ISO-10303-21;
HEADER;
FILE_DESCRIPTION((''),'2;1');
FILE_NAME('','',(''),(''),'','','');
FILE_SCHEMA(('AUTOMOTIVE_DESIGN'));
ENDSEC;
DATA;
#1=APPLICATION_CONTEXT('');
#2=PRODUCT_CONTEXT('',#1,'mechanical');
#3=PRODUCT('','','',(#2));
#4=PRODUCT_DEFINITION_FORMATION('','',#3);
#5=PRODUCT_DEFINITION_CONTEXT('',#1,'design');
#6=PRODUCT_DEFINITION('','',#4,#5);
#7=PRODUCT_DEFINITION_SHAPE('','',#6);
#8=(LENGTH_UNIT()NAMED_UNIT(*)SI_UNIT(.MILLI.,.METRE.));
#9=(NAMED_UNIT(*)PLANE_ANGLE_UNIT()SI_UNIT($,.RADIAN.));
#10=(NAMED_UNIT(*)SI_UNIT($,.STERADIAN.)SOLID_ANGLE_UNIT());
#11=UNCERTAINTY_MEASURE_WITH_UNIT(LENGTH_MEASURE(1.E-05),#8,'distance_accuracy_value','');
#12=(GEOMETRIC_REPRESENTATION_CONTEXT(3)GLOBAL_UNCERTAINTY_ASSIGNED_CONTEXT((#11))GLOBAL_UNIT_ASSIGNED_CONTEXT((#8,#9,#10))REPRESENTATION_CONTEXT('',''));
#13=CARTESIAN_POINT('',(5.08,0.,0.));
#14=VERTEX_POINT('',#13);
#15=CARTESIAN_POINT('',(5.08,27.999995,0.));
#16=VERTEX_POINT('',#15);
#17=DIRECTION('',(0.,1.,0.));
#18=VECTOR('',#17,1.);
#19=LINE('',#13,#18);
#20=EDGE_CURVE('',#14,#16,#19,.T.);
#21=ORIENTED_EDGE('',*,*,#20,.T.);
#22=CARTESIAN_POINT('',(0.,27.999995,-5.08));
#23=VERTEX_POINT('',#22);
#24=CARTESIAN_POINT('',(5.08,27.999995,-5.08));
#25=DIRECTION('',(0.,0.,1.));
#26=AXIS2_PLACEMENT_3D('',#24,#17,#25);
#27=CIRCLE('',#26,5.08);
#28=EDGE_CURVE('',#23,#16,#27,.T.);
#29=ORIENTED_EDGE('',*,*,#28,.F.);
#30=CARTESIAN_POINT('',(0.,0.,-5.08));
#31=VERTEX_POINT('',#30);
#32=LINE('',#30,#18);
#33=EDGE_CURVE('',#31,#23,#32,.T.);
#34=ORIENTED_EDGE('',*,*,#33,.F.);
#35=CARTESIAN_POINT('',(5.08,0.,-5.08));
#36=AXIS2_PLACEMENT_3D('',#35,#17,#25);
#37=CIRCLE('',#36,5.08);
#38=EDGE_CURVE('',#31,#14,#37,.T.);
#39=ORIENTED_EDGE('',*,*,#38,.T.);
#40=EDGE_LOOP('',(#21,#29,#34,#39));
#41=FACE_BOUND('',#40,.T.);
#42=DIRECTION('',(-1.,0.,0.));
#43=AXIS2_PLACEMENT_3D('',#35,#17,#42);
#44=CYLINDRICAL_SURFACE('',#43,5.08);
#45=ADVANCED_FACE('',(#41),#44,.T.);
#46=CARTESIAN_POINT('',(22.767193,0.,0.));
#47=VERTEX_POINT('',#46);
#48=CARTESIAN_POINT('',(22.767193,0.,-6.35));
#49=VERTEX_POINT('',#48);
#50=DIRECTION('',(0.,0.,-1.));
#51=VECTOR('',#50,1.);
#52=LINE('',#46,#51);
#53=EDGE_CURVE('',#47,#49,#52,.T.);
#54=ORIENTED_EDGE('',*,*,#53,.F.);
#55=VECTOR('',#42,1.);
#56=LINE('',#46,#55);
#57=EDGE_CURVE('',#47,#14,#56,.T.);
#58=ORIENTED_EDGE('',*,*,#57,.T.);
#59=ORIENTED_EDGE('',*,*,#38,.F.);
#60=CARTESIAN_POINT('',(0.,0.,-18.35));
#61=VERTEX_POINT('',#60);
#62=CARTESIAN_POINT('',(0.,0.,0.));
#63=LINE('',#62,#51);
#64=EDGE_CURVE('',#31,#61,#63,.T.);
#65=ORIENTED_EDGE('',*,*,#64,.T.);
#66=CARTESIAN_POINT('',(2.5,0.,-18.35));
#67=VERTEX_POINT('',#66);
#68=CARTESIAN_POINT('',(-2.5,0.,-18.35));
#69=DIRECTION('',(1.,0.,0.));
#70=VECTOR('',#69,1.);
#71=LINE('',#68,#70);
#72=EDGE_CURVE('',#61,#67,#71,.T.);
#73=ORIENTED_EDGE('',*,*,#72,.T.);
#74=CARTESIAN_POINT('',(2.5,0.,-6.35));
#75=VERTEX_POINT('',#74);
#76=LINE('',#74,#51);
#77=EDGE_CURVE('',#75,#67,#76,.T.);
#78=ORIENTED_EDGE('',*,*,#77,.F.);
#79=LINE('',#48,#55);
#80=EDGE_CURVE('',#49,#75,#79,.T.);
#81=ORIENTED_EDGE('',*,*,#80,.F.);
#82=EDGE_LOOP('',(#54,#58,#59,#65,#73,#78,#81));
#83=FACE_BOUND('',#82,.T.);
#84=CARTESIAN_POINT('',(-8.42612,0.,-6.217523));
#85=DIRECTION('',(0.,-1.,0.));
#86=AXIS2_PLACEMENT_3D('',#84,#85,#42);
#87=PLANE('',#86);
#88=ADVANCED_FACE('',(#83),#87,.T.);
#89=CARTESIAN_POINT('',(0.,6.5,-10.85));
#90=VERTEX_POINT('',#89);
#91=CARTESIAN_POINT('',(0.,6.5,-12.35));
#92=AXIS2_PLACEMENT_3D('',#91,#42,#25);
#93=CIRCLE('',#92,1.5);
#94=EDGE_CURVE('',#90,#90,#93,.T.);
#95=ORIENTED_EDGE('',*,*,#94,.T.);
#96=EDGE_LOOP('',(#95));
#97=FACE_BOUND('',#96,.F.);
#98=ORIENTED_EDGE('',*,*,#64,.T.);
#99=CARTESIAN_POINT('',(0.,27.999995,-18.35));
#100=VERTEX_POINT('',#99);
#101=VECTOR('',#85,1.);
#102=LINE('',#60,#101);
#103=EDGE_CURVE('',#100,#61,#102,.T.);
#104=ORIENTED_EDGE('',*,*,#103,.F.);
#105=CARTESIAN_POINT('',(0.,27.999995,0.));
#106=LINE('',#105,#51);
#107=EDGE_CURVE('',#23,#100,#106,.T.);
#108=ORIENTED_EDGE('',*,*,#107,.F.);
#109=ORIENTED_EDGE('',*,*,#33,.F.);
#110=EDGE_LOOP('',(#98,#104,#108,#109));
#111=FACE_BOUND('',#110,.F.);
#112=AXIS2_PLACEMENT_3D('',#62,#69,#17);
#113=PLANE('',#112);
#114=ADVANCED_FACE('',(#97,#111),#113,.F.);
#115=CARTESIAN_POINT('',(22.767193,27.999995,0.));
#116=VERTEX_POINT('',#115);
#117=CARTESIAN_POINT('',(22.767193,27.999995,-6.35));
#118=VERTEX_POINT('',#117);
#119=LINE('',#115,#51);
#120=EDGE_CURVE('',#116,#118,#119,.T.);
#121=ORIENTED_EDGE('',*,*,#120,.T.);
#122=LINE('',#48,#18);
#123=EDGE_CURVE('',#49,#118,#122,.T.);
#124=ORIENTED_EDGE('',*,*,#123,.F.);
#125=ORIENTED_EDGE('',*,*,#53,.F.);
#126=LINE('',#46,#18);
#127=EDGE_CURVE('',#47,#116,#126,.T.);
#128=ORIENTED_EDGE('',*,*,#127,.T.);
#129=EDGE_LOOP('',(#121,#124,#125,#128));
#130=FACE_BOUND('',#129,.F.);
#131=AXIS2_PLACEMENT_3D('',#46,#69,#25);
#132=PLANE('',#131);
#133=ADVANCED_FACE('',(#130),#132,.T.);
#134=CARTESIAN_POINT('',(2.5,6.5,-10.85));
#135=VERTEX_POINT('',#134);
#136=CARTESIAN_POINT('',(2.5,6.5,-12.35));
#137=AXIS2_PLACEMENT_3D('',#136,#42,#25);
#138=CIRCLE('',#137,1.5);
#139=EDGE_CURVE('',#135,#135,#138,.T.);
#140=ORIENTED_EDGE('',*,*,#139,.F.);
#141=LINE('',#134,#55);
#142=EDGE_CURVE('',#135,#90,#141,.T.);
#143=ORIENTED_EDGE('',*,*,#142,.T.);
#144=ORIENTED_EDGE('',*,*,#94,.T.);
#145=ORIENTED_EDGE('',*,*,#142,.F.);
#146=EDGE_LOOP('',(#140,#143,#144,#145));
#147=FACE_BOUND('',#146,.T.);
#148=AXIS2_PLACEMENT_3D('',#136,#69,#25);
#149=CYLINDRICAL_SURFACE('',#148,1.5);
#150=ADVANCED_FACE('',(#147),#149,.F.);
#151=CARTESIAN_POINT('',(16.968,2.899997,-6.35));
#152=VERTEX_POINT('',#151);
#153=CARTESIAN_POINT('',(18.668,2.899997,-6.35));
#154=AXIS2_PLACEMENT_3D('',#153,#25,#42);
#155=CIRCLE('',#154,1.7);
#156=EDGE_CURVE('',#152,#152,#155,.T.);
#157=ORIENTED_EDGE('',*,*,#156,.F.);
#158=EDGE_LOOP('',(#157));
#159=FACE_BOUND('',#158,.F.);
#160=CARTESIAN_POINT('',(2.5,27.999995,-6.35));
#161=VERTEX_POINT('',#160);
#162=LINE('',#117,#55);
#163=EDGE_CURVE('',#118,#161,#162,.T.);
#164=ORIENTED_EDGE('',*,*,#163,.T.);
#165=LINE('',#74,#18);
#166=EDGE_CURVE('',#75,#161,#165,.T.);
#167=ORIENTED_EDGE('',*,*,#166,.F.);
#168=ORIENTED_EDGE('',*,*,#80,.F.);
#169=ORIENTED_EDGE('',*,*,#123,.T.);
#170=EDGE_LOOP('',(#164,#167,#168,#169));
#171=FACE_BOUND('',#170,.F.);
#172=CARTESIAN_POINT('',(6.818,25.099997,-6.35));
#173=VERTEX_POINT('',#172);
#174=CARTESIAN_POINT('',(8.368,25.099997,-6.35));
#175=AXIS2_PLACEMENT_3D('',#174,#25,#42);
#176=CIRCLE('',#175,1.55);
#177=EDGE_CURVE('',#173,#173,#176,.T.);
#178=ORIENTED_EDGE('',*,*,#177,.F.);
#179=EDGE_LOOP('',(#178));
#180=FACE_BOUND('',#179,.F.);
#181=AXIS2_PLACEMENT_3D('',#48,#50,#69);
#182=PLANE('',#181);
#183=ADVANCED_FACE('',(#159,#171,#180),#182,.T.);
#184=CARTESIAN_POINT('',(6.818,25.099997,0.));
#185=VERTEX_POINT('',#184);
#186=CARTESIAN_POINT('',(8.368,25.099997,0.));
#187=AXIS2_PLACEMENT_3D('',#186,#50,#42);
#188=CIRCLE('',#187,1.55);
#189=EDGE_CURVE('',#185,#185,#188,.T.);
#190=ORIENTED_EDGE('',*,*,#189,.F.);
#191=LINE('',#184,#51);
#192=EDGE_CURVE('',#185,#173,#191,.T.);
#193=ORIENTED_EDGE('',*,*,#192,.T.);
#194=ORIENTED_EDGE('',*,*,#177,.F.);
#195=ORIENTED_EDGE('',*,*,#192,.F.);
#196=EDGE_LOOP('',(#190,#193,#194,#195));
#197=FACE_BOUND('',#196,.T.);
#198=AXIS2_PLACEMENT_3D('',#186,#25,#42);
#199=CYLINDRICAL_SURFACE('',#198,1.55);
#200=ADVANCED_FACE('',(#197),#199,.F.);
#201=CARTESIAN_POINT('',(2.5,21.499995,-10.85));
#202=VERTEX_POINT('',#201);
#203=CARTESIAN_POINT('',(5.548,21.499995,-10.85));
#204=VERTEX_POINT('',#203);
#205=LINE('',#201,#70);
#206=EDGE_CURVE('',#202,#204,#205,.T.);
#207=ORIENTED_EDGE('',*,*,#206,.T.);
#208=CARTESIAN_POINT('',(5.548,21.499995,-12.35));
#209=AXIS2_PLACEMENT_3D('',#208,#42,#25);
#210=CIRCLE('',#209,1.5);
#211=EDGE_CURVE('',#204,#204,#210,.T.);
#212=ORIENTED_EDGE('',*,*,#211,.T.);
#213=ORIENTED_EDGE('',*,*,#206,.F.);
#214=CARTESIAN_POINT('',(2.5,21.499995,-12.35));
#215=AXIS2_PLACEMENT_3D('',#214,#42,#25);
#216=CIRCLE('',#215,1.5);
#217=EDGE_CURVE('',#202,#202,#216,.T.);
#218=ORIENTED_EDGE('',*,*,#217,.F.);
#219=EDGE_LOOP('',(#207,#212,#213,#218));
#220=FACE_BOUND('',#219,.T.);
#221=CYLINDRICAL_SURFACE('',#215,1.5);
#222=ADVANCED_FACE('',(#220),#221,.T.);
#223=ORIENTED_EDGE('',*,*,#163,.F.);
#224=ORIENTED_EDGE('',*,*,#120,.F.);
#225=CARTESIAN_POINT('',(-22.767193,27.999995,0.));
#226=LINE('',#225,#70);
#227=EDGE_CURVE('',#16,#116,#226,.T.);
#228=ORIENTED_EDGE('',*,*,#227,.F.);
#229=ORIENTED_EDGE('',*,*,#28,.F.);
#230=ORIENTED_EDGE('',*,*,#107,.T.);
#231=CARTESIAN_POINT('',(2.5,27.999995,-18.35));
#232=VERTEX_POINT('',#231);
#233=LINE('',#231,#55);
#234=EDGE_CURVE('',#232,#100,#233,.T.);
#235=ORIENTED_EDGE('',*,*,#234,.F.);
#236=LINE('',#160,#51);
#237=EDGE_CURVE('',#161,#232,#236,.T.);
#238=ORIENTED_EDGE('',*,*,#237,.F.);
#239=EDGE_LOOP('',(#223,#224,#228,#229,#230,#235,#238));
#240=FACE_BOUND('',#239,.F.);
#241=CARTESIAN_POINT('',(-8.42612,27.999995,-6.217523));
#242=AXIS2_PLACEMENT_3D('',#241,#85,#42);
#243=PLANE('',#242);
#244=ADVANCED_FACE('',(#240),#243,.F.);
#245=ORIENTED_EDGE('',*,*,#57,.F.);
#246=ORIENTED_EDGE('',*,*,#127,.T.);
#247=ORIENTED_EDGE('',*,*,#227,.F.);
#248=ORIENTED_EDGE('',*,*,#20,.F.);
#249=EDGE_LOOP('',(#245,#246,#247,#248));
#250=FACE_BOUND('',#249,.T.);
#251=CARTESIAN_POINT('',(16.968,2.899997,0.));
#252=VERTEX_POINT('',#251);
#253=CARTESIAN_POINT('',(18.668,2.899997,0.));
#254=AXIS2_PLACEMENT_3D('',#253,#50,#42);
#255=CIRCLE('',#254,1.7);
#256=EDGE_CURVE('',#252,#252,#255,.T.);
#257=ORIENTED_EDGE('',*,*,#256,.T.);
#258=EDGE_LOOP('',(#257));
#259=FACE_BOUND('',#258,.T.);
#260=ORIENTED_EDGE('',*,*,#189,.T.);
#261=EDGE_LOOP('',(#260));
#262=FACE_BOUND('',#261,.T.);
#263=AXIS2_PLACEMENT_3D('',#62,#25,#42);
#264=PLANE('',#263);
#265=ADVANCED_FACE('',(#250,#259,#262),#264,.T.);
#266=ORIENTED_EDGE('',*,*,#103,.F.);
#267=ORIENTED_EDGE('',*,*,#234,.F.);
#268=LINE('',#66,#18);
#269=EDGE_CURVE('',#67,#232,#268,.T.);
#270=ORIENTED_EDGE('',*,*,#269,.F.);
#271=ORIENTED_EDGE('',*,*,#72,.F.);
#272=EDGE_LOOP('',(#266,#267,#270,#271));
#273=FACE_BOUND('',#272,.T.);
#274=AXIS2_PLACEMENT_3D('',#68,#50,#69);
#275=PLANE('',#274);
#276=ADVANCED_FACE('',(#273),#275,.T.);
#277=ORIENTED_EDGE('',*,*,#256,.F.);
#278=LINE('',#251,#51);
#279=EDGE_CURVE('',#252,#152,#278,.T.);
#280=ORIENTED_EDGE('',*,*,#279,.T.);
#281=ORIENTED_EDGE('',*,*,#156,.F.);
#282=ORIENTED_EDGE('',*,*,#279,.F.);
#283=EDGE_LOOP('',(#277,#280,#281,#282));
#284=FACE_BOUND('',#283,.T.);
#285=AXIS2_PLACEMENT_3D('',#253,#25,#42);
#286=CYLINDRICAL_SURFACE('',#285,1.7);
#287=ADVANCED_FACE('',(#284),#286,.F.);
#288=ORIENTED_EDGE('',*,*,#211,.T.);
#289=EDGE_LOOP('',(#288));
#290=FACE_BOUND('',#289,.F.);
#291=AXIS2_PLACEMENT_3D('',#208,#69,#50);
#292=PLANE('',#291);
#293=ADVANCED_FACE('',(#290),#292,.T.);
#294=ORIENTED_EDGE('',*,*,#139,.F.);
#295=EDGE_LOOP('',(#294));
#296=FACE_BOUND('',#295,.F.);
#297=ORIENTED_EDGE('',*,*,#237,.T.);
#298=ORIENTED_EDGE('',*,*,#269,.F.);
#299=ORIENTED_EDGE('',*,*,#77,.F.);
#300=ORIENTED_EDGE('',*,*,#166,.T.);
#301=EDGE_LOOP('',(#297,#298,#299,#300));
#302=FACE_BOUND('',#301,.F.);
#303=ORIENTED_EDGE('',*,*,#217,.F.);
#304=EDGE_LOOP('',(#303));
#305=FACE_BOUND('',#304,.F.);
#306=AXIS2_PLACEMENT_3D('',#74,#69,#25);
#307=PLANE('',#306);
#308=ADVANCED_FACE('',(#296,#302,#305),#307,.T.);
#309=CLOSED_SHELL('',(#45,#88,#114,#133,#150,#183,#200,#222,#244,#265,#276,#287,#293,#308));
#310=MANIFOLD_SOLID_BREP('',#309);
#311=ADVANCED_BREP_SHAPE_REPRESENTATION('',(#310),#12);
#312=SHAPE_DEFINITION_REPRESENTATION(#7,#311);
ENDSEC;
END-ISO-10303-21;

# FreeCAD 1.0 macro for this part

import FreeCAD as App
import Part
import Sketcher
from FreeCAD import Vector
Q = App.Units.Quantity


def edges_at(feature, points):
    """Names of the edges that pass closest to the given points."""
    edges = feature.Shape.Edges
    near = lambda p: min(range(len(edges)), key=lambda i: edges[i].distToShape(Part.Vertex(*p))[0])
    return sorted({f"Edge{near(p) + 1}" for p in points})


def add_polygon(sketch, points):
    """Adds a closed chain of lines whose ends are joined by coincident constraints."""
    first, n = sketch.GeometryCount, len(points)
    for a, b in zip(points, points[1:] + points[:1]):
        sketch.addGeometry(Part.LineSegment(App.Vector(*a, 0), App.Vector(*b, 0)), False)
    for i in range(n):
        sketch.addConstraint(Sketcher.Constraint("Coincident", first + i, 2, first + (i + 1) % n, 1))

doc = App.newDocument("Part")
body = doc.addObject("PartDesign::Body", "Body")

sketch1 = body.newObject("Sketcher::SketchObject", "Sketch")
sketch1.AttachmentSupport = (doc.getObject("XZ_Plane"), [""])
sketch1.MapMode = "FlatFace"
add_polygon(sketch1, [(0, 0), (0, -18.4), (-2.5, -18.4), (-2.5, -6.3), (-22.8, -6.3), (-22.8, 0)])
sketch1.addConstraint([
    Sketcher.Constraint("Vertical", 0),
    Sketcher.Constraint("Horizontal", 1),
    Sketcher.Constraint("Vertical", 2),
    Sketcher.Constraint("Horizontal", 3),
    Sketcher.Constraint("Vertical", 4),
    Sketcher.Constraint("Horizontal", 5),
    Sketcher.Constraint("Coincident", 5, 2, -1, 1),
    Sketcher.Constraint("DistanceY", 2, 1, 2, 2, Q("12 mm")),
    Sketcher.Constraint("DistanceX", 1, 2, 1, 1, Q("2.5 mm")),
    Sketcher.Constraint("DistanceY", 0, 2, 0, 1, Q("18.35 mm")),
    Sketcher.Constraint("DistanceX", 3, 2, 3, 1, Q("20.267193 mm")),
])
pad1 = body.newObject("PartDesign::Pad", "Pad")
pad1.Profile = sketch1
pad1.Length = 27.999995
pad1.Reversed = True

sketch2 = body.newObject("Sketcher::SketchObject", "Sketch001")
sketch2.AttachmentSupport = (doc.getObject("YZ_Plane"), [""])
sketch2.MapMode = "FlatFace"
sketch2.AttachmentOffset = App.Placement(Vector(0, 0, -2.5), App.Rotation())
sketch2.addGeometry(Part.Circle(Vector(6.5, -12.3, 0), Vector(0, 0, 1), 1.5), False)
sketch2.addConstraint([
    Sketcher.Constraint("Diameter", 0, Q("3 mm")),
    Sketcher.Constraint("DistanceX", -1, 1, 0, 3, Q("6.5 mm")),
    Sketcher.Constraint("DistanceY", 0, 3, -1, 1, Q("12.35 mm")),
])
pocket1 = body.newObject("PartDesign::Pocket", "Pocket")
pocket1.Profile = sketch2
pocket1.Type = "ThroughAll"
pocket1.Reversed = True

sketch3 = body.newObject("Sketcher::SketchObject", "Sketch002")
sketch3.AttachmentSupport = (doc.getObject("YZ_Plane"), [""])
sketch3.MapMode = "FlatFace"
sketch3.AttachmentOffset = App.Placement(Vector(0, 0, -2.5), App.Rotation())
sketch3.addGeometry(Part.Circle(Vector(21.5, -12.3, 0), Vector(0, 0, 1), 1.5), False)
sketch3.addConstraint([
    Sketcher.Constraint("Diameter", 0, Q("3 mm")),
    Sketcher.Constraint("DistanceY", 0, 3, -1, 1, Q("12.35 mm")),
    Sketcher.Constraint("DistanceX", -1, 1, 0, 3, Q("21.499995 mm")),
])
pad2 = body.newObject("PartDesign::Pad", "Pad001")
pad2.Profile = sketch3
pad2.Length = 3.048
pad2.Reversed = True

sketch4 = body.newObject("Sketcher::SketchObject", "Sketch003")
sketch4.AttachmentSupport = (doc.getObject("XY_Plane"), [""])
sketch4.MapMode = "FlatFace"
sketch4.addGeometry([
    Part.Circle(Vector(-8.4, 25.1, 0), Vector(0, 0, 1), 1.6),
    Part.Circle(Vector(-18.7, 2.9, 0), Vector(0, 0, 1), 1.7),
], False)
sketch4.addConstraint([
    Sketcher.Constraint("Diameter", 0, Q("3.1 mm")),
    Sketcher.Constraint("Diameter", 1, Q("3.4 mm")),
    Sketcher.Constraint("DistanceX", 1, 3, 0, 3, Q("10.3 mm")),
    Sketcher.Constraint("DistanceY", 1, 3, 0, 3, Q("22.2 mm")),
    Sketcher.Constraint("DistanceX", 0, 3, -1, 1, Q("8.368 mm")),
    Sketcher.Constraint("DistanceY", -1, 1, 0, 3, Q("25.099997 mm")),
])
pocket2 = body.newObject("PartDesign::Pocket", "Pocket001")
pocket2.Profile = sketch4
pocket2.Type = "ThroughAll"
doc.recompute()

mirrored = body.newObject("PartDesign::Mirrored", "Mirrored")
mirrored.Originals = [pad1, pocket1, pad2, pocket2]
mirrored.MirrorPlane = (doc.getObject("YZ_Plane"), [""])
body.Tip = mirrored

sketch5 = body.newObject("Sketcher::SketchObject", "Sketch004")
sketch5.AttachmentSupport = (doc.getObject("XY_Plane"), [""])
sketch5.MapMode = "FlatFace"
add_polygon(sketch5, [(-23, 28), (-23, 0), (0, 0), (0, 28)])
sketch5.addConstraint([
    Sketcher.Constraint("Vertical", 0),
    Sketcher.Constraint("Horizontal", 1),
    Sketcher.Constraint("Vertical", 2),
    Sketcher.Constraint("Horizontal", 3),
    Sketcher.Constraint("Coincident", 1, 2, -1, 1),
    Sketcher.Constraint("DistanceX", 1, 1, 1, 2, Q("22.767193 mm")),
    Sketcher.Constraint("DistanceY", 0, 2, 0, 1, Q("27.999995 mm")),
])
pocket3 = body.newObject("PartDesign::Pocket", "Pocket002")
pocket3.Profile = sketch5
pocket3.Type = "ThroughAll"
doc.recompute()

fillet = body.newObject("PartDesign::Fillet", "Fillet")
fillet.Base = (pocket3, edges_at(pocket3, [(0, 14, 0)]))
fillet.Radius = 5.08

doc.recompute()
